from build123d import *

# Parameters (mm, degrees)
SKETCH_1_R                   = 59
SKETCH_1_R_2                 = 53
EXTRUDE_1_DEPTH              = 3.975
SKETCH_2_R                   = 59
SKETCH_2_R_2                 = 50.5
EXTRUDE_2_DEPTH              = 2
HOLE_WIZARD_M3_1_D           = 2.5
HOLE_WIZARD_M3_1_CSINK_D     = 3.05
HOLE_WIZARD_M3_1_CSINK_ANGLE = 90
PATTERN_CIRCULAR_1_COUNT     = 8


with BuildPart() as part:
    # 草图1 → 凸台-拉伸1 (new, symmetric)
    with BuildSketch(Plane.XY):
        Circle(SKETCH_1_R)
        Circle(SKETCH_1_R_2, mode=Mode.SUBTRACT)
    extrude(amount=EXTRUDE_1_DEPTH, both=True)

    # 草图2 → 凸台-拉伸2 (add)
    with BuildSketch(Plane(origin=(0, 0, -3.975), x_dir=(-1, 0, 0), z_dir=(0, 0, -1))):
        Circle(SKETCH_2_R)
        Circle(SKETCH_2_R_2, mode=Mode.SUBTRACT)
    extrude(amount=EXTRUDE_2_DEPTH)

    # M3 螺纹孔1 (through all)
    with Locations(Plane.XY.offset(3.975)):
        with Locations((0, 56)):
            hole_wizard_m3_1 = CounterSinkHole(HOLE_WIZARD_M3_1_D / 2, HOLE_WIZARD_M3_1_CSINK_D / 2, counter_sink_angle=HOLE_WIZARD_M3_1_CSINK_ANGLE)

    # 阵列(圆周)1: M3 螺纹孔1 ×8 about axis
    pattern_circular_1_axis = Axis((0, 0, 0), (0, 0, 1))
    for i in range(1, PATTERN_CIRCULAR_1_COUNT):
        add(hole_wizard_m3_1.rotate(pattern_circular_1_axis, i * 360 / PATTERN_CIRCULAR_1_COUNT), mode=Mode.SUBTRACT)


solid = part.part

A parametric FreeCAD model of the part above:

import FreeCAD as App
import Part
import Sketcher
Q = App.Units.Quantity

doc = App.newDocument("Part")
body = doc.addObject("PartDesign::Body", "Body")

# Sketch on XY plane
sketch1 = body.newObject("Sketcher::SketchObject", "Sketch")
sketch1.AttachmentSupport = (doc.getObject("XY_Plane"), [""])
sketch1.MapMode = "FlatFace"
sketch1.addGeometry(Part.Circle(App.Vector(0, 0, 0), App.Vector(0, 0, 1), 59), False)
sketch1.addGeometry(Part.Circle(App.Vector(0, 0, 0), App.Vector(0, 0, 1), 53), False)
sketch1.addConstraint(Sketcher.Constraint("Coincident", 0, 3, -1, 1))
sketch1.addConstraint(Sketcher.Constraint("Coincident", 1, 3, -1, 1))
sketch1.addConstraint(Sketcher.Constraint("Diameter", 0, Q("118 mm")))
sketch1.addConstraint(Sketcher.Constraint("Diameter", 1, Q("106 mm")))
pad1 = body.newObject("PartDesign::Pad", "Pad")
pad1.Profile = sketch1
pad1.Length = 7.95
pad1.Midplane = True

# Sketch on XY plane
sketch2 = body.newObject("Sketcher::SketchObject", "Sketch001")
sketch2.AttachmentSupport = (doc.getObject("XY_Plane"), [""])
sketch2.MapMode = "FlatFace"
sketch2.AttachmentOffset = App.Placement(App.Vector(0, 0, -3.975), App.Rotation())
sketch2.addGeometry(Part.Circle(App.Vector(0, 0, 0), App.Vector(0, 0, 1), 59), False)
sketch2.addGeometry(Part.Circle(App.Vector(0, 0, 0), App.Vector(0, 0, 1), 50), False)
sketch2.addConstraint(Sketcher.Constraint("Coincident", 0, 3, -1, 1))
sketch2.addConstraint(Sketcher.Constraint("Coincident", 1, 3, -1, 1))
sketch2.addConstraint(Sketcher.Constraint("Diameter", 0, Q("118 mm")))
sketch2.addConstraint(Sketcher.Constraint("Diameter", 1, Q("101 mm")))
pad2 = body.newObject("PartDesign::Pad", "Pad001")
pad2.Profile = sketch2
pad2.Length = 2
pad2.Reversed = True

# Sketch on XY plane
sketch3 = body.newObject("Sketcher::SketchObject", "Sketch002")
sketch3.AttachmentSupport = (doc.getObject("XY_Plane"), [""])
sketch3.MapMode = "FlatFace"
sketch3.AttachmentOffset = App.Placement(App.Vector(0, 0, 3.975), App.Rotation())
sketch3.addGeometry(Part.Circle(App.Vector(0, 56, 0), App.Vector(0, 0, 1), 1.2), False)
sketch3.addConstraint(Sketcher.Constraint("PointOnObject", 0, 3, -2))
sketch3.addConstraint(Sketcher.Constraint("Diameter", 0, Q("2.5 mm")))
sketch3.addConstraint(Sketcher.Constraint("DistanceY", -1, 1, 0, 3, Q("56 mm")))
doc.recompute()
hole = body.newObject("PartDesign::Hole", "Hole")
hole.Profile = sketch3
hole.ThreadType = "None"
hole.Diameter = 2.5
hole.DepthType = "ThroughAll"
hole.HoleCutType = "Countersink"
hole.HoleCutDiameter = 3.05
hole.HoleCutCountersinkAngle = 90
doc.recompute()

polarpattern = body.newObject("PartDesign::PolarPattern", "PolarPattern")
polarpattern.Originals = [hole]
polarpattern.Axis = (doc.getObject("Z_Axis"), [""])
polarpattern.Angle = 360
polarpattern.Occurrences = 8
body.Tip = polarpattern

doc.recompute()
